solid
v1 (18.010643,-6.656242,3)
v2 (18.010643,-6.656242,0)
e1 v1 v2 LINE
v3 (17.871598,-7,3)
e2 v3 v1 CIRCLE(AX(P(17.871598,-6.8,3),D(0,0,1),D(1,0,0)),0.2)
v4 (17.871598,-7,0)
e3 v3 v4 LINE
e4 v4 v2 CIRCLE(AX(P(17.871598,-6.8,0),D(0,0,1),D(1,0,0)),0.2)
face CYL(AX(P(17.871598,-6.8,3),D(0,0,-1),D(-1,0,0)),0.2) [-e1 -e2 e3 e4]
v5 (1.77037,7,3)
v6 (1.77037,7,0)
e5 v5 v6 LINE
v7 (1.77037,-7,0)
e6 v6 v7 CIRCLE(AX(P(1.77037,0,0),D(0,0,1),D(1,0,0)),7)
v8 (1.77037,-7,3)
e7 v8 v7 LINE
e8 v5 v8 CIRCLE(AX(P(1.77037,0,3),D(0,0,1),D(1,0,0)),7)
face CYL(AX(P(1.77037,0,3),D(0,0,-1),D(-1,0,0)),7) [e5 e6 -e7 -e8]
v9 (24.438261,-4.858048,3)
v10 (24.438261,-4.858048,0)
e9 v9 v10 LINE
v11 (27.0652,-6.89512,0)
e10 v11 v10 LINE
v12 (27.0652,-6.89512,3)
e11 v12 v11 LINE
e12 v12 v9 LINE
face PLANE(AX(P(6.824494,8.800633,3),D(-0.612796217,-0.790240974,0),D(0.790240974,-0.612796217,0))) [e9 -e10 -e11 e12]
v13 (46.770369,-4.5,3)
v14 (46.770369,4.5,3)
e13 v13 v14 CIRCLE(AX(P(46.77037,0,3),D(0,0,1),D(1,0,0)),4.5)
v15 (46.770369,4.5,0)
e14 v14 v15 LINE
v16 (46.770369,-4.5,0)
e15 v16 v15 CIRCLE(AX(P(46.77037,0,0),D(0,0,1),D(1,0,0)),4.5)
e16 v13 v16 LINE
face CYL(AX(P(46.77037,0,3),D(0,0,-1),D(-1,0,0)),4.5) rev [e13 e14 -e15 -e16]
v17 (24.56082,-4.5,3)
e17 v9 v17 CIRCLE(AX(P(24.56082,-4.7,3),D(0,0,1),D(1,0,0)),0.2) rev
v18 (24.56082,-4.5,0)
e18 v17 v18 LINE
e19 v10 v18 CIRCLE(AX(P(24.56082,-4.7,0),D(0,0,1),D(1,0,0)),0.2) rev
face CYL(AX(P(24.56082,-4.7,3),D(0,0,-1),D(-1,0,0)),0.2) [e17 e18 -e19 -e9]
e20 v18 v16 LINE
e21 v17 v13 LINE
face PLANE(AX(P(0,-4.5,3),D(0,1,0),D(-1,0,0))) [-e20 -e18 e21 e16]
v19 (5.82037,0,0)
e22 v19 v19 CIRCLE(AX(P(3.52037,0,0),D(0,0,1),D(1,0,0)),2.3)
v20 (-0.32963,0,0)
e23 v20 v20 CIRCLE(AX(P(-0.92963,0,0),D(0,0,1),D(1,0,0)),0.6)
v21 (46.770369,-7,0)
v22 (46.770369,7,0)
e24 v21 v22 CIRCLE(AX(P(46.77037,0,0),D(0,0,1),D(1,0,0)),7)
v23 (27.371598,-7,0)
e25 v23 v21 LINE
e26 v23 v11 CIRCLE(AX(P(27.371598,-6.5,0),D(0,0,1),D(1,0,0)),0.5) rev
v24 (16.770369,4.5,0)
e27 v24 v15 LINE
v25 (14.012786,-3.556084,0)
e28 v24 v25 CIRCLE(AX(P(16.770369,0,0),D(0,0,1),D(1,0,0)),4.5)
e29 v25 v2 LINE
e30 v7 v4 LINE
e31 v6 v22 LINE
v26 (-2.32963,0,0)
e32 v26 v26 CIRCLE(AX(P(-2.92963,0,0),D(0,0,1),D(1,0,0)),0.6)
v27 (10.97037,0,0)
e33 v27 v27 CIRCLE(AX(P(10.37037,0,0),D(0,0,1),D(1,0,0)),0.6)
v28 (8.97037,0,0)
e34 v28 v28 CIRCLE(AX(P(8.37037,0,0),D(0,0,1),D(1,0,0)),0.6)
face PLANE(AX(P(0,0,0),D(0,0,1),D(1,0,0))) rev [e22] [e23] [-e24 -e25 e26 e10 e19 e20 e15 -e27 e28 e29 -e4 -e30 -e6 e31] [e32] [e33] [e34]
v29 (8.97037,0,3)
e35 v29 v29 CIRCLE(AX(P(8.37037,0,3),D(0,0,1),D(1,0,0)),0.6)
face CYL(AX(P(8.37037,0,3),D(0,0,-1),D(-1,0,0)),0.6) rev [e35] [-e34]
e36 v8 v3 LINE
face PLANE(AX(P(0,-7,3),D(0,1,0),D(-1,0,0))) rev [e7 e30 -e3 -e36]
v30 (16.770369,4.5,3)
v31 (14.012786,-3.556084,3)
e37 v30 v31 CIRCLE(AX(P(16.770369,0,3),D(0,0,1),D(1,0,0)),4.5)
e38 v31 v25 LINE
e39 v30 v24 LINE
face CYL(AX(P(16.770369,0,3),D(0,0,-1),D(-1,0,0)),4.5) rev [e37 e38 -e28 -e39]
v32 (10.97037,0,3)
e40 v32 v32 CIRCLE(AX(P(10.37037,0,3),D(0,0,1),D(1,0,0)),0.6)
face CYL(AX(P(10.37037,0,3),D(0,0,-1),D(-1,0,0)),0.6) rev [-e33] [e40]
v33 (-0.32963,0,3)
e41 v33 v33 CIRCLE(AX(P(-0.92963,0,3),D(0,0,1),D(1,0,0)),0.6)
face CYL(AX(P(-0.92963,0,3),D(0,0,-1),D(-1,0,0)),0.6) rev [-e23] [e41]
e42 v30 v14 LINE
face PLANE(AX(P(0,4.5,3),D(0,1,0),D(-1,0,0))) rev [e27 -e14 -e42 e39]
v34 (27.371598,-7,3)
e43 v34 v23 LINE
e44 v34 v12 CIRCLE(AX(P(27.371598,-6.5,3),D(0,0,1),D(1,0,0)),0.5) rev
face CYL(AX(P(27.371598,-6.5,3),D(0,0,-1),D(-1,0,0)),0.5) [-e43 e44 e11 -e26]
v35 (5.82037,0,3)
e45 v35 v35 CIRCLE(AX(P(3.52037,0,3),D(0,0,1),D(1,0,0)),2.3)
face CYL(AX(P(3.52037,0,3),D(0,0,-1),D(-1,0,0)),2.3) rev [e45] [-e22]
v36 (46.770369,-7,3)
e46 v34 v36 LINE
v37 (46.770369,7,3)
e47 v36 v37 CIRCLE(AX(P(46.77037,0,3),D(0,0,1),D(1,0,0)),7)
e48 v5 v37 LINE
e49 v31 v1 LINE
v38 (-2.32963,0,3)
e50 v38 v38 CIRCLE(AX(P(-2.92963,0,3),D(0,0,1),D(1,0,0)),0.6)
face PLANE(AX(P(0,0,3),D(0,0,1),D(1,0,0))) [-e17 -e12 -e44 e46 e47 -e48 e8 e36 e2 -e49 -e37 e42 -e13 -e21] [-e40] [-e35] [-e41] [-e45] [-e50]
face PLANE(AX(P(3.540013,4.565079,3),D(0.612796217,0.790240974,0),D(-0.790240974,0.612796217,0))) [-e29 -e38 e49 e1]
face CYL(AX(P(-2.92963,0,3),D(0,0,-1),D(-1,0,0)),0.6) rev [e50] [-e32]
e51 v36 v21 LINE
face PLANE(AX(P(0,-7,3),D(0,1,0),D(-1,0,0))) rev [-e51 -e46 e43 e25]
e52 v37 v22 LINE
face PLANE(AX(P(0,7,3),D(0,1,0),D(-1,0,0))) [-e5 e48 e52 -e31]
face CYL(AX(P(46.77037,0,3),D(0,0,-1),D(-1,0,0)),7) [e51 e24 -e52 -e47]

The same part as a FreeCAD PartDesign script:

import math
import FreeCAD as App
import Part
import Sketcher
from FreeCAD import Vector

doc = App.newDocument("Part")
body = doc.addObject("PartDesign::Body", "Body")

sketch1 = body.newObject("Sketcher::SketchObject", "Sketch")
sketch1.AttachmentSupport = (doc.getObject("XY_Plane"), [""])
sketch1.MapMode = "FlatFace"
sketch1.addGeometry(Part.LineSegment(Vector(16.770369, 4.5, 0), Vector(46.770369, 4.5, 0)), False)
sketch1.addGeometry(Part.ArcOfCircle(Part.Circle(Vector(46.77037, 0, 0), Vector(0, 0, 1), 4.5), math.radians(-90.000011), math.radians(90.000011)), False)
sketch1.addGeometry(Part.LineSegment(Vector(46.770369, -4.5, 0), Vector(24.56082, -4.5, 0)), False)
sketch1.addGeometry(Part.ArcOfCircle(Part.Circle(Vector(24.56082, -4.7, 0), Vector(0, 0, 1), 0.2), math.radians(90), math.radians(232.208037)), False)
sketch1.addGeometry(Part.LineSegment(Vector(24.438261, -4.858048, 0), Vector(27.0652, -6.89512, 0)), False)
sketch1.addGeometry(Part.ArcOfCircle(Part.Circle(Vector(27.371598, -6.5, 0), Vector(0, 0, 1), 0.5), math.radians(-127.791964), math.radians(-90)), False)
sketch1.addGeometry(Part.LineSegment(Vector(27.371598, -7, 0), Vector(46.770369, -7, 0)), False)
sketch1.addGeometry(Part.ArcOfCircle(Part.Circle(Vector(46.77037, 0, 0), Vector(0, 0, 1), 7), math.radians(-90.000011), math.radians(90.000007)), False)
sketch1.addGeometry(Part.LineSegment(Vector(46.770369, 7, 0), Vector(1.77037, 7, 0)), False)
sketch1.addGeometry(Part.ArcOfCircle(Part.Circle(Vector(1.77037, 0, 0), Vector(0, 0, 1), 7), math.radians(90), math.radians(270)), False)
sketch1.addGeometry(Part.LineSegment(Vector(1.77037, -7, 0), Vector(17.871598, -7, 0)), False)
sketch1.addGeometry(Part.ArcOfCircle(Part.Circle(Vector(17.871598, -6.8, 0), Vector(0, 0, 1), 0.2), math.radians(-90), math.radians(45.954841)), False)
sketch1.addGeometry(Part.LineSegment(Vector(18.010643, -6.656242, 0), Vector(14.012786, -3.556084, 0)), False)
sketch1.addGeometry(Part.ArcOfCircle(Part.Circle(Vector(16.770369, 0, 0), Vector(0, 0, 1), 4.5), math.radians(90), math.radians(232.208037)), False)
sketch1.addGeometry(Part.Circle(Vector(-2.92963, 0, 0), Vector(0, 0, 1), 0.6), False)
sketch1.addGeometry(Part.Circle(Vector(-0.92963, 0, 0), Vector(0, 0, 1), 0.6), False)
sketch1.addGeometry(Part.Circle(Vector(3.52037, 0, 0), Vector(0, 0, 1), 2.3), False)
sketch1.addGeometry(Part.Circle(Vector(8.37037, 0, 0), Vector(0, 0, 1), 0.6), False)
sketch1.addGeometry(Part.Circle(Vector(10.37037, 0, 0), Vector(0, 0, 1), 0.6), False)
sketch1.addConstraint(Sketcher.Constraint("Tangent", 0, 2, 1, 2))
sketch1.addConstraint(Sketcher.Constraint("Tangent", 1, 1, 2, 1))
sketch1.addConstraint(Sketcher.Constraint("Tangent", 2, 2, 3, 1))
sketch1.addConstraint(Sketcher.Constraint("Tangent", 3, 2, 4, 1))
sketch1.addConstraint(Sketcher.Constraint("Tangent", 4, 2, 5, 1))
sketch1.addConstraint(Sketcher.Constraint("Tangent", 5, 2, 6, 1))
sketch1.addConstraint(Sketcher.Constraint("Tangent", 6, 2, 7, 1))
sketch1.addConstraint(Sketcher.Constraint("Tangent", 7, 2, 8, 1))
sketch1.addConstraint(Sketcher.Constraint("Tangent", 8, 2, 9, 1))
sketch1.addConstraint(Sketcher.Constraint("Tangent", 9, 2, 10, 1))
sketch1.addConstraint(Sketcher.Constraint("Tangent", 10, 2, 11, 1))
sketch1.addConstraint(Sketcher.Constraint("Coincident", 11, 2, 12, 1))
sketch1.addConstraint(Sketcher.Constraint("Tangent", 12, 2, 13, 2))
sketch1.addConstraint(Sketcher.Constraint("Tangent", 13, 1, 0, 1))
sketch1.addConstraint(Sketcher.Constraint("Horizontal", 0))
sketch1.addConstraint(Sketcher.Constraint("Horizontal", 2))
sketch1.addConstraint(Sketcher.Constraint("Horizontal", 6))
sketch1.addConstraint(Sketcher.Constraint("Horizontal", 8))
sketch1.addConstraint(Sketcher.Constraint("Horizontal", 10))
sketch1.addConstraint(Sketcher.Constraint("Coincident", 7, 3, 1, 3))
sketch1.addConstraint(Sketcher.Constraint("Equal", 7, 9))
sketch1.addConstraint(Sketcher.Constraint("Equal", 3, 11))
sketch1.addConstraint(Sketcher.Constraint("Equal", 1, 13))
sketch1.addConstraint(Sketcher.Constraint("Equal", 14, 15))
sketch1.addConstraint(Sketcher.Constraint("Equal", 15, 17))
sketch1.addConstraint(Sketcher.Constraint("Equal", 17, 18))
sketch1.addConstraint(Sketcher.Constraint("PointOnObject", 1, 3, -1))
sketch1.addConstraint(Sketcher.Constraint("PointOnObject", 14, 3, -1))
sketch1.addConstraint(Sketcher.Constraint("PointOnObject", 15, 3, -1))
sketch1.addConstraint(Sketcher.Constraint("PointOnObject", 16, 3, -1))
sketch1.addConstraint(Sketcher.Constraint("PointOnObject", 17, 3, -1))
sketch1.addConstraint(Sketcher.Constraint("PointOnObject", 18, 3, -1))
sketch1.addConstraint(Sketcher.Constraint("Parallel", 4, 12))
sketch1.addConstraint(Sketcher.Constraint("Radius", 7, 7.0))
sketch1.addConstraint(Sketcher.Constraint("Diameter", 14, 1.2))
sketch1.addConstraint(Sketcher.Constraint("Diameter", 16, 4.6))
sketch1.addConstraint(Sketcher.Constraint("Radius", 1, 4.5))
sketch1.addConstraint(Sketcher.Constraint("Radius", 3, 0.2))
sketch1.addConstraint(Sketcher.Constraint("Radius", 5, 0.5))
sketch1.addConstraint(Sketcher.Constraint("DistanceX", 0, 1, 0, 2, 30.0))
sketch1.addConstraint(Sketcher.Constraint("DistanceX", 8, 2, 8, 1, 44.999999))
sketch1.addConstraint(Sketcher.Constraint("DistanceX", 14, 3, 15, 3, 2.0))
sketch1.addConstraint(Sketcher.Constraint("DistanceX", 17, 3, 18, 3, 2.0))
sketch1.addConstraint(Sketcher.Constraint("DistanceX", 11, 3, 5, 3, 9.5))
sketch1.addConstraint(Sketcher.Constraint("DistanceX", 14, 3, 9, 3, 4.7))
sketch1.addConstraint(Sketcher.Constraint("DistanceX", 9, 3, 17, 3, 6.6))
sketch1.addConstraint(Sketcher.Constraint("DistanceX", 9, 3, 16, 3, 1.75))
sketch1.addConstraint(Sketcher.Constraint("DistanceX", 2, 2, 2, 1, 22.209549))
sketch1.addConstraint(Sketcher.Constraint("DistanceX", 6, 1, 6, 2, 19.398771))
sketch1.addConstraint(Sketcher.Constraint("DistanceX", -1, 1, 4, 2, 27.0652))
pad1 = body.newObject("PartDesign::Pad", "Pad")
pad1.Profile = sketch1
pad1.Length = 3

doc.recompute()
